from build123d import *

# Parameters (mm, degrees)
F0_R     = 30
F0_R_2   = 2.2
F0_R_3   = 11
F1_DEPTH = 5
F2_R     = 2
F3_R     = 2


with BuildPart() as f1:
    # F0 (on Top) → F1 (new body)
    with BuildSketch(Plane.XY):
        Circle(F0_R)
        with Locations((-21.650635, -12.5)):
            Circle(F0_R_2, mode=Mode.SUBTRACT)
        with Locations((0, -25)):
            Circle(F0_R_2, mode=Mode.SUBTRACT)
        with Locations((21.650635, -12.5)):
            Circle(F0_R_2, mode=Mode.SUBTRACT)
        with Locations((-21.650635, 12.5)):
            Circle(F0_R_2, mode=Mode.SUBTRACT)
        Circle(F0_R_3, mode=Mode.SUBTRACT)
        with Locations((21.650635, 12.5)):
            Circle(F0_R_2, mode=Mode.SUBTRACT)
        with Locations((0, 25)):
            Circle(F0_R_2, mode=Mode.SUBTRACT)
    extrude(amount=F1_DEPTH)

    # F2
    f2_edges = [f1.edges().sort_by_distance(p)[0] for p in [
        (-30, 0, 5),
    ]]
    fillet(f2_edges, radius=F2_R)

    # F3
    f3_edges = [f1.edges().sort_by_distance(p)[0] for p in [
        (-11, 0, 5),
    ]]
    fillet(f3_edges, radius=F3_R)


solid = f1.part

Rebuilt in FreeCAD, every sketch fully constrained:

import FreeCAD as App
import Part
import Sketcher

V = App.Vector
Q = App.Units.Quantity


def edges_at(feature, points):
    """Names of the edges that pass closest to the given points."""
    edges = feature.Shape.Edges
    near = lambda p: min(range(len(edges)), key=lambda i: edges[i].distToShape(Part.Vertex(*p))[0])
    return sorted({f"Edge{near(p) + 1}" for p in points})

doc = App.newDocument("Part")
body = doc.addObject("PartDesign::Body", "Body")

# Sketch on XY plane
sketch1 = doc.addObject("Sketcher::SketchObject", "Sketch")
body.addObject(sketch1)
sketch1.AttachmentSupport = (doc.XY_Plane, [""])
sketch1.MapMode = "FlatFace"
sketch1.addGeometry([
    Part.Circle(V(0, 0, 0), V(0, 0, 1), 30),  # 0
    Part.Circle(V(-21.7, -12.5, 0), V(0, 0, 1), 2.2),  # 1
    Part.Circle(V(0, -25, 0), V(0, 0, 1), 2.2),  # 2
    Part.Circle(V(21.7, -12.5, 0), V(0, 0, 1), 2.2),  # 3
    Part.Circle(V(-21.7, 12.5, 0), V(0, 0, 1), 2.2),  # 4
    Part.Circle(V(0, 0, 0), V(0, 0, 1), 11),  # 5
    Part.Circle(V(21.7, 12.5, 0), V(0, 0, 1), 2.2),  # 6
    Part.Circle(V(0, 25, 0), V(0, 0, 1), 2.2),  # 7
], False)
sketch1.addConstraint([
    Sketcher.Constraint("Coincident", 0, 3, -1, 1),
    Sketcher.Constraint("Coincident", 5, 3, -1, 1),
    Sketcher.Constraint("Equal", 1, 2),
    Sketcher.Constraint("Equal", 2, 3),
    Sketcher.Constraint("Equal", 3, 4),
    Sketcher.Constraint("Equal", 4, 6),
    Sketcher.Constraint("Equal", 6, 7),
    Sketcher.Constraint("Symmetric", 3, 3, 4, 3, -1, 1),
    Sketcher.Constraint("Symmetric", 1, 3, 6, 3, -1, 1),
    Sketcher.Constraint("Symmetric", 2, 3, 7, 3, -1, 1),
    Sketcher.Constraint("Symmetric", 1, 3, 3, 3, -2),
    Sketcher.Constraint("PointOnObject", 2, 3, -2),
    Sketcher.Constraint("Diameter", 0, Q("60 mm")),
    Sketcher.Constraint("Diameter", 5, Q("22 mm")),
    Sketcher.Constraint("Diameter", 1, Q("4.4 mm")),
    Sketcher.Constraint("DistanceY", 2, 3, -1, 1, Q("25 mm")),
    Sketcher.Constraint("DistanceY", 1, 3, 4, 3, Q("25 mm")),
    Sketcher.Constraint("DistanceX", 1, 3, 3, 3, Q("43.30127 mm")),
])
pad1 = doc.addObject("PartDesign::Pad", "Pad")
body.addObject(pad1)
pad1.Profile = sketch1
pad1.Length = 5
doc.recompute()

fillet = doc.addObject("PartDesign::Fillet", "Fillet")
body.addObject(fillet)
fillet.Base = (pad1, edges_at(pad1, [(-30, 0, 5)]))
fillet.Radius = 2
doc.recompute()

fillet2 = doc.addObject("PartDesign::Fillet", "Fillet001")
body.addObject(fillet2)
fillet2.Base = (fillet, edges_at(fillet, [(-11, 0, 5)]))
fillet2.Radius = 2

doc.recompute()
